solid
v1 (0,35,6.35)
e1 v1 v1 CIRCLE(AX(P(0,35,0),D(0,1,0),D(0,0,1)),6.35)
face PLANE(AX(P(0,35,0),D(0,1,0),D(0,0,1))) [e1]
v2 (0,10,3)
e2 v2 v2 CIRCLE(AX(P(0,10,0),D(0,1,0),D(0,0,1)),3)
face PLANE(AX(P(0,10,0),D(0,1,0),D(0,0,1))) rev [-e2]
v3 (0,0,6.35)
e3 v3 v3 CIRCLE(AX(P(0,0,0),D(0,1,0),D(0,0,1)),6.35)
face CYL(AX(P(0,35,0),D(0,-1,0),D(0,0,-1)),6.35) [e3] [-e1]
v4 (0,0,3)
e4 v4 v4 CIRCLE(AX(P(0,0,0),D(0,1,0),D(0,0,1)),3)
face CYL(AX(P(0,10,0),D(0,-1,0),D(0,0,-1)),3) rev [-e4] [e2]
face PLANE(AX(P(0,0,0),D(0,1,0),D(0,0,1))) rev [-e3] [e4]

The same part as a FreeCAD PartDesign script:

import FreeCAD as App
import Part
import Sketcher

V = App.Vector
Q = App.Units.Quantity

doc = App.newDocument("Part")
body = doc.addObject("PartDesign::Body", "Body")

# Sketch on XZ plane
sketch1 = body.newObject("Sketcher::SketchObject", "Sketch")
sketch1.AttachmentSupport = (doc.getObject("XZ_Plane"), [""])
sketch1.MapMode = "FlatFace"
sketch1.addGeometry(Part.Circle(V(0, 0, 0), V(0, 0, 1), 6), False)
sketch1.addConstraint([
    Sketcher.Constraint("Coincident", 0, 3, -1, 1),
    Sketcher.Constraint("Diameter", 0, Q("12.7 mm")),
])
pad1 = body.newObject("PartDesign::Pad", "Pad")
pad1.Profile = sketch1
pad1.Length = 35
pad1.Reversed = True

# Sketch on XZ plane
sketch2 = body.newObject("Sketcher::SketchObject", "Sketch001")
sketch2.AttachmentSupport = (doc.getObject("XZ_Plane"), [""])
sketch2.MapMode = "FlatFace"
sketch2.addGeometry(Part.Circle(V(0, 0, 0), V(0, 0, 1), 3), False)
sketch2.addConstraint([
    Sketcher.Constraint("Coincident", 0, 3, -1, 1),
    Sketcher.Constraint("Diameter", 0, Q("6 mm")),
])
pocket1 = body.newObject("PartDesign::Pocket", "Pocket")
pocket1.Profile = sketch2
pocket1.Length = 10

doc.recompute()
